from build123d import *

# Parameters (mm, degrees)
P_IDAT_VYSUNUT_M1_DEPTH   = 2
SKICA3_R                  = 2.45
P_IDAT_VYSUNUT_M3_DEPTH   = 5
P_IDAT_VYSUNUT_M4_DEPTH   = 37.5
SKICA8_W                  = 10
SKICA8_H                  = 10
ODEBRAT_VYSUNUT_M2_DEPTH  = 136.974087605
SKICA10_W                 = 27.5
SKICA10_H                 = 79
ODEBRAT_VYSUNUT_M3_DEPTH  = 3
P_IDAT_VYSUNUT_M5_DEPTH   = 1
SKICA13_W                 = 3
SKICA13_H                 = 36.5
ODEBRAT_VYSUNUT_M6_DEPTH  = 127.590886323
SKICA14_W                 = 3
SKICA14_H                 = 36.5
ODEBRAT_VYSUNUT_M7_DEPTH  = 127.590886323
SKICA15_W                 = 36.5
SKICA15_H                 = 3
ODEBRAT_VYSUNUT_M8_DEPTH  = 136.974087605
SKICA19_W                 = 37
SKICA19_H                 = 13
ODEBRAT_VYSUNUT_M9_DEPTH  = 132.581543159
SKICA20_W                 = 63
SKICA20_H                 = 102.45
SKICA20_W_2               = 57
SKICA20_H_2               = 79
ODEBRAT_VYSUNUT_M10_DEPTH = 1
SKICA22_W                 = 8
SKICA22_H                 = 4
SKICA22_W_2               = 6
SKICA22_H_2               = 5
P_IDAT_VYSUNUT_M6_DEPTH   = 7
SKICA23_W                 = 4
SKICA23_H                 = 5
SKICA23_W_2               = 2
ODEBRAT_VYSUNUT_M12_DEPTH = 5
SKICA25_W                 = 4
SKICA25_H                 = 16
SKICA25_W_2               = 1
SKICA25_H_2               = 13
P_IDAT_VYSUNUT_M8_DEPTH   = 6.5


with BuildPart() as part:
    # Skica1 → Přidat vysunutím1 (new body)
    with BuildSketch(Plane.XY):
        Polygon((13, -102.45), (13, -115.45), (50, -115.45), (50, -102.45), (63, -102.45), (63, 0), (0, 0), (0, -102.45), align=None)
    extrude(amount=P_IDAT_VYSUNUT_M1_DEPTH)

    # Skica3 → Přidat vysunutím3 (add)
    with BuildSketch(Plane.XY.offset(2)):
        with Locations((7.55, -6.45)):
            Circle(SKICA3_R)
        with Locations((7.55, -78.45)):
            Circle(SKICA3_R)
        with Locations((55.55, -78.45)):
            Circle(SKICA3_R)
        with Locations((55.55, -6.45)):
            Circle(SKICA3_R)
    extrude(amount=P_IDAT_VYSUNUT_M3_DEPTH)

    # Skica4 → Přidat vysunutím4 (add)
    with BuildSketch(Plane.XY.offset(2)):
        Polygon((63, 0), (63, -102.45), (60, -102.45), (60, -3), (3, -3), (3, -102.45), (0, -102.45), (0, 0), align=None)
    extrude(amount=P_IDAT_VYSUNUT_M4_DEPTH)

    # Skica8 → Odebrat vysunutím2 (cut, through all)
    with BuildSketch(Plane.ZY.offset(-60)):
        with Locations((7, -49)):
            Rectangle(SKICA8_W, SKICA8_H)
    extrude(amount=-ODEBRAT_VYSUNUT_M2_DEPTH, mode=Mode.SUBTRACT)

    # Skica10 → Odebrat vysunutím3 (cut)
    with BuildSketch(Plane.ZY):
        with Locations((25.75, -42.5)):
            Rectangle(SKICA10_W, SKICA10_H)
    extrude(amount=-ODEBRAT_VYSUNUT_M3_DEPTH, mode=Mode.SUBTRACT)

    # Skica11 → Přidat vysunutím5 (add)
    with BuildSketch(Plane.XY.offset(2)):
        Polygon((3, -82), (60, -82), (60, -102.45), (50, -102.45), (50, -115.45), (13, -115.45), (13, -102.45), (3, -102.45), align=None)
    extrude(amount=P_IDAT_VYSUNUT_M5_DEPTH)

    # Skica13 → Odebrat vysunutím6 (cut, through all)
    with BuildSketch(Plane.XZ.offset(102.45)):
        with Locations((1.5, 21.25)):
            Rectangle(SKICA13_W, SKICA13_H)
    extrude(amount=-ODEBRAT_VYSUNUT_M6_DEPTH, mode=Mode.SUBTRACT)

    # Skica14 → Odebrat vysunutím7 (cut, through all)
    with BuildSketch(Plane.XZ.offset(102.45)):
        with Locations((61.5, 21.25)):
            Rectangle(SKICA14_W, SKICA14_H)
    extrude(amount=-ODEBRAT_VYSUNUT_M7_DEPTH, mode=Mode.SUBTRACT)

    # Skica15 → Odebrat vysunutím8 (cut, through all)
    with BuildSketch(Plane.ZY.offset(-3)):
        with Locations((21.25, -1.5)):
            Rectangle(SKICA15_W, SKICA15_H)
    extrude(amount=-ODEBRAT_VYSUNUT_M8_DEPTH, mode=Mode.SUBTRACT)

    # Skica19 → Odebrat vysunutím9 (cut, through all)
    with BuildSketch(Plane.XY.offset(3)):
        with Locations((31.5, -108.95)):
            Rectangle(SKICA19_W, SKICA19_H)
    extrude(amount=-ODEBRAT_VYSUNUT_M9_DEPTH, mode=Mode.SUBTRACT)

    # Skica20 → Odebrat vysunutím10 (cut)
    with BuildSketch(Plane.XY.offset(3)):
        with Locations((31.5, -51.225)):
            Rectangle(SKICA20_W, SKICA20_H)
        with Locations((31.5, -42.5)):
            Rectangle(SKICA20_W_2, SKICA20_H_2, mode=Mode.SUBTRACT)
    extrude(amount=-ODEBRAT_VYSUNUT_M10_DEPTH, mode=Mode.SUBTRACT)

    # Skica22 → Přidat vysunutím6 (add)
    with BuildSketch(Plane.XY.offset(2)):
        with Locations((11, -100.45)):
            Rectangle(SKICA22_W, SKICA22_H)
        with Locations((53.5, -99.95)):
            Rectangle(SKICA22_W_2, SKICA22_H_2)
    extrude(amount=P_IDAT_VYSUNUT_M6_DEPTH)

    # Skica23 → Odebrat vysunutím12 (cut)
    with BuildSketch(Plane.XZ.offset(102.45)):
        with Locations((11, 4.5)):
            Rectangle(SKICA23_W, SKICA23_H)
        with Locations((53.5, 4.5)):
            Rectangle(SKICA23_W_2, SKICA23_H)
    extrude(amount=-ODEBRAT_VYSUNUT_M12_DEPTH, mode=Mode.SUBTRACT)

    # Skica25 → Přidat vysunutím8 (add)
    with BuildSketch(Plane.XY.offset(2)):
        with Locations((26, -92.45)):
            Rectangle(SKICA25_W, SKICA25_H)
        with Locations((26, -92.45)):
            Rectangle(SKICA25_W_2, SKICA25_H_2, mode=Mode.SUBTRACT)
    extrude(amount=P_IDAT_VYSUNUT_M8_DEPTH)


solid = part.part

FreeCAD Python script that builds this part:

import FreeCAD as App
import Part
import Sketcher
from FreeCAD import Vector


def add_polygon(sketch, points):
    """Adds a closed chain of lines whose ends are joined by coincident constraints."""
    first, n = sketch.GeometryCount, len(points)
    for a, b in zip(points, points[1:] + points[:1]):
        sketch.addGeometry(Part.LineSegment(App.Vector(*a, 0), App.Vector(*b, 0)), False)
    for i in range(n):
        sketch.addConstraint(Sketcher.Constraint("Coincident", first + i, 2, first + (i + 1) % n, 1))

doc = App.newDocument("Part")
body = doc.addObject("PartDesign::Body", "Body")

# Sketch on XY plane
sketch1 = doc.addObject("Sketcher::SketchObject", "Sketch")
body.addObject(sketch1)
sketch1.AttachmentSupport = (doc.XY_Plane, [""])
sketch1.MapMode = "FlatFace"
add_polygon(sketch1, [(13, -102), (13, -115), (50, -115), (50, -102), (63, -102), (63, 0), (0, 0), (0, -102)])  # lines 0-7
sketch1.addConstraint(Sketcher.Constraint("Vertical", 0))
sketch1.addConstraint(Sketcher.Constraint("Horizontal", 1))
sketch1.addConstraint(Sketcher.Constraint("Vertical", 2))
sketch1.addConstraint(Sketcher.Constraint("Horizontal", 3))
sketch1.addConstraint(Sketcher.Constraint("Vertical", 4))
sketch1.addConstraint(Sketcher.Constraint("Horizontal", 5))
sketch1.addConstraint(Sketcher.Constraint("Vertical", 6))
sketch1.addConstraint(Sketcher.Constraint("Horizontal", 7))
sketch1.addConstraint(Sketcher.Constraint("Coincident", 5, 2, -1, 1))
sketch1.addConstraint(Sketcher.Constraint("Horizontal", 3, 2, 6, 2))
sketch1.addConstraint(Sketcher.Constraint("Equal", 3, 7))
sketch1.addConstraint(Sketcher.Constraint("Equal", 7, 0))
sketch1.addConstraint(Sketcher.Constraint("DistanceX", 1, 1, 1, 2, 37.0))
sketch1.addConstraint(Sketcher.Constraint("DistanceX", 3, 1, 3, 2, 13.0))
sketch1.addConstraint(Sketcher.Constraint("DistanceY", 4, 1, 4, 2, 102.45))
pad1 = doc.addObject("PartDesign::Pad", "Pad")
body.addObject(pad1)
pad1.Profile = sketch1
pad1.Length = 2

# Sketch on XY plane
sketch2 = doc.addObject("Sketcher::SketchObject", "Sketch001")
body.addObject(sketch2)
sketch2.AttachmentSupport = (doc.XY_Plane, [""])
sketch2.MapMode = "FlatFace"
sketch2.AttachmentOffset = App.Placement(Vector(0, 0, 2), App.Rotation())
sketch2.addGeometry(Part.Circle(Vector(7.5, -6.5, 0), Vector(0, 0, 1), 2.5), False)
sketch2.addGeometry(Part.Circle(Vector(7.5, -78.5, 0), Vector(0, 0, 1), 2.5), False)
sketch2.addGeometry(Part.Circle(Vector(55.5, -78.5, 0), Vector(0, 0, 1), 2.5), False)
sketch2.addGeometry(Part.Circle(Vector(55.5, -6.5, 0), Vector(0, 0, 1), 2.5), False)
sketch2.addConstraint(Sketcher.Constraint("Equal", 0, 1))
sketch2.addConstraint(Sketcher.Constraint("Equal", 1, 2))
sketch2.addConstraint(Sketcher.Constraint("Equal", 2, 3))
sketch2.addConstraint(Sketcher.Constraint("Horizontal", 1, 3, 2, 3))
sketch2.addConstraint(Sketcher.Constraint("Horizontal", 0, 3, 3, 3))
sketch2.addConstraint(Sketcher.Constraint("Vertical", 0, 3, 1, 3))
sketch2.addConstraint(Sketcher.Constraint("Vertical", 2, 3, 3, 3))
sketch2.addConstraint(Sketcher.Constraint("Diameter", 0, 4.9))
sketch2.addConstraint(Sketcher.Constraint("DistanceY", 1, 3, 0, 3, 72.0))
sketch2.addConstraint(Sketcher.Constraint("DistanceX", 1, 3, 2, 3, 48.0))
sketch2.addConstraint(Sketcher.Constraint("DistanceX", -1, 1, 0, 3, 7.55))
sketch2.addConstraint(Sketcher.Constraint("DistanceY", 0, 3, -1, 1, 6.45))
pad2 = doc.addObject("PartDesign::Pad", "Pad001")
body.addObject(pad2)
pad2.Profile = sketch2
pad2.Length = 5

# Sketch on XY plane
sketch3 = doc.addObject("Sketcher::SketchObject", "Sketch002")
body.addObject(sketch3)
sketch3.AttachmentSupport = (doc.XY_Plane, [""])
sketch3.MapMode = "FlatFace"
sketch3.AttachmentOffset = App.Placement(Vector(0, 0, 2), App.Rotation())
add_polygon(sketch3, [(63, -102.5), (63, 0), (0, 0), (0, -102.5), (3, -102.5), (3, -3), (60, -3), (60, -102.5)])  # lines 0-7
sketch3.addConstraint(Sketcher.Constraint("Vertical", 0))
sketch3.addConstraint(Sketcher.Constraint("Horizontal", 1))
sketch3.addConstraint(Sketcher.Constraint("Vertical", 2))
sketch3.addConstraint(Sketcher.Constraint("Horizontal", 3))
sketch3.addConstraint(Sketcher.Constraint("Vertical", 4))
sketch3.addConstraint(Sketcher.Constraint("Horizontal", 5))
sketch3.addConstraint(Sketcher.Constraint("Vertical", 6))
sketch3.addConstraint(Sketcher.Constraint("Horizontal", 7))
sketch3.addConstraint(Sketcher.Constraint("Coincident", 1, 2, -1, 1))
sketch3.addConstraint(Sketcher.Constraint("Horizontal", 3, 2, 6, 2))
sketch3.addConstraint(Sketcher.Constraint("Equal", 3, 7))
sketch3.addConstraint(Sketcher.Constraint("DistanceX", 1, 2, 1, 1, 63.0))
sketch3.addConstraint(Sketcher.Constraint("DistanceX", 3, 1, 3, 2, 3.0))
sketch3.addConstraint(Sketcher.Constraint("DistanceY", 4, 2, -1, 1, 3.0))
sketch3.addConstraint(Sketcher.Constraint("DistanceY", 0, 1, 0, 2, 102.45))
pad3 = doc.addObject("PartDesign::Pad", "Pad002")
body.addObject(pad3)
pad3.Profile = sketch3
pad3.Length = 37.5

# Sketch on YZ plane
sketch4 = doc.addObject("Sketcher::SketchObject", "Sketch003")
body.addObject(sketch4)
sketch4.AttachmentSupport = (doc.YZ_Plane, [""])
sketch4.MapMode = "FlatFace"
sketch4.AttachmentOffset = App.Placement(Vector(0, 0, 60), App.Rotation())
add_polygon(sketch4, [(-44, 2), (-54, 2), (-54, 12), (-44, 12)])  # lines 0-3
sketch4.addConstraint(Sketcher.Constraint("Horizontal", 0))
sketch4.addConstraint(Sketcher.Constraint("Vertical", 1))
sketch4.addConstraint(Sketcher.Constraint("Horizontal", 2))
sketch4.addConstraint(Sketcher.Constraint("Vertical", 3))
sketch4.addConstraint(Sketcher.Constraint("Equal", 2, 1))
sketch4.addConstraint(Sketcher.Constraint("DistanceX", 0, 2, 0, 1, 10.0))
sketch4.addConstraint(Sketcher.Constraint("DistanceX", 0, 2, -1, 1, 54.0))
sketch4.addConstraint(Sketcher.Constraint("DistanceY", -1, 1, 0, 2, 2.0))
pocket1 = doc.addObject("PartDesign::Pocket", "Pocket")
body.addObject(pocket1)
pocket1.Profile = sketch4
pocket1.Type = "ThroughAll"
pocket1.Reversed = True

# Sketch on YZ plane
sketch5 = doc.addObject("Sketcher::SketchObject", "Sketch004")
body.addObject(sketch5)
sketch5.AttachmentSupport = (doc.YZ_Plane, [""])
sketch5.MapMode = "FlatFace"
add_polygon(sketch5, [(-3, 12), (-82, 12), (-82, 40), (-3, 40)])  # lines 0-3
sketch5.addConstraint(Sketcher.Constraint("Horizontal", 0))
sketch5.addConstraint(Sketcher.Constraint("Vertical", 1))
sketch5.addConstraint(Sketcher.Constraint("Horizontal", 2))
sketch5.addConstraint(Sketcher.Constraint("Vertical", 3))
sketch5.addConstraint(Sketcher.Constraint("DistanceX", 0, 2, 0, 1, 79.0))
sketch5.addConstraint(Sketcher.Constraint("DistanceY", 1, 1, 1, 2, 27.5))
sketch5.addConstraint(Sketcher.Constraint("DistanceX", 0, 2, -1, 1, 82.0))
sketch5.addConstraint(Sketcher.Constraint("DistanceY", -1, 1, 0, 2, 12.0))
pocket2 = doc.addObject("PartDesign::Pocket", "Pocket001")
body.addObject(pocket2)
pocket2.Profile = sketch5
pocket2.Length = 3
pocket2.Reversed = True

# Sketch on XY plane
sketch6 = doc.addObject("Sketcher::SketchObject", "Sketch005")
body.addObject(sketch6)
sketch6.AttachmentSupport = (doc.XY_Plane, [""])
sketch6.MapMode = "FlatFace"
sketch6.AttachmentOffset = App.Placement(Vector(0, 0, 2), App.Rotation())
add_polygon(sketch6, [(60, -82), (3, -82), (3, -102), (13, -102), (13, -115), (50, -115), (50, -102), (60, -102)])  # lines 0-7
sketch6.addConstraint(Sketcher.Constraint("Horizontal", 0))
sketch6.addConstraint(Sketcher.Constraint("Vertical", 1))
sketch6.addConstraint(Sketcher.Constraint("Horizontal", 2))
sketch6.addConstraint(Sketcher.Constraint("Vertical", 3))
sketch6.addConstraint(Sketcher.Constraint("Horizontal", 4))
sketch6.addConstraint(Sketcher.Constraint("Vertical", 5))
sketch6.addConstraint(Sketcher.Constraint("Horizontal", 6))
sketch6.addConstraint(Sketcher.Constraint("Vertical", 7))
sketch6.addConstraint(Sketcher.Constraint("Horizontal", 2, 2, 5, 2))
sketch6.addConstraint(Sketcher.Constraint("Equal", 2, 6))
sketch6.addConstraint(Sketcher.Constraint("DistanceX", 0, 2, 0, 1, 57.0))
sketch6.addConstraint(Sketcher.Constraint("DistanceX", 2, 1, 2, 2, 10.0))
sketch6.addConstraint(Sketcher.Constraint("DistanceY", 3, 2, 3, 1, 13.0))
sketch6.addConstraint(Sketcher.Constraint("DistanceX", -1, 1, 0, 2, 3.0))
sketch6.addConstraint(Sketcher.Constraint("DistanceY", 0, 2, -1, 1, 82.0))
sketch6.addConstraint(Sketcher.Constraint("DistanceY", 1, 2, 1, 1, 20.45))
pad4 = doc.addObject("PartDesign::Pad", "Pad003")
body.addObject(pad4)
pad4.Profile = sketch6
pad4.Length = 1

# Sketch on XZ plane
sketch7 = doc.addObject("Sketcher::SketchObject", "Sketch006")
body.addObject(sketch7)
sketch7.AttachmentSupport = (doc.XZ_Plane, [""])
sketch7.MapMode = "FlatFace"
sketch7.AttachmentOffset = App.Placement(Vector(0, 0, 102.45), App.Rotation())
add_polygon(sketch7, [(0, 39.5), (0, 3), (3, 3), (3, 39.5)])  # lines 0-3
sketch7.addConstraint(Sketcher.Constraint("Vertical", 0))
sketch7.addConstraint(Sketcher.Constraint("Horizontal", 1))
sketch7.addConstraint(Sketcher.Constraint("Vertical", 2))
sketch7.addConstraint(Sketcher.Constraint("Horizontal", 3))
sketch7.addConstraint(Sketcher.Constraint("PointOnObject", 0, 2, -2))
sketch7.addConstraint(Sketcher.Constraint("DistanceX", 1, 1, 1, 2, 3.0))
sketch7.addConstraint(Sketcher.Constraint("DistanceY", 0, 2, 0, 1, 36.5))
sketch7.addConstraint(Sketcher.Constraint("DistanceY", -1, 1, 0, 2, 3.0))
pocket3 = doc.addObject("PartDesign::Pocket", "Pocket002")
body.addObject(pocket3)
pocket3.Profile = sketch7
pocket3.Type = "ThroughAll"

# Sketch on XZ plane
sketch8 = doc.addObject("Sketcher::SketchObject", "Sketch007")
body.addObject(sketch8)
sketch8.AttachmentSupport = (doc.XZ_Plane, [""])
sketch8.MapMode = "FlatFace"
sketch8.AttachmentOffset = App.Placement(Vector(0, 0, 102.45), App.Rotation())
add_polygon(sketch8, [(60, 39.5), (60, 3), (63, 3), (63, 39.5)])  # lines 0-3
sketch8.addConstraint(Sketcher.Constraint("Vertical", 0))
sketch8.addConstraint(Sketcher.Constraint("Horizontal", 1))
sketch8.addConstraint(Sketcher.Constraint("Vertical", 2))
sketch8.addConstraint(Sketcher.Constraint("Horizontal", 3))
sketch8.addConstraint(Sketcher.Constraint("DistanceX", 1, 1, 1, 2, 3.0))
sketch8.addConstraint(Sketcher.Constraint("DistanceY", 0, 2, 0, 1, 36.5))
sketch8.addConstraint(Sketcher.Constraint("DistanceX", -1, 1, 0, 2, 60.0))
sketch8.addConstraint(Sketcher.Constraint("DistanceY", -1, 1, 0, 2, 3.0))
pocket4 = doc.addObject("PartDesign::Pocket", "Pocket003")
body.addObject(pocket4)
pocket4.Profile = sketch8
pocket4.Type = "ThroughAll"

# Sketch on YZ plane
sketch9 = doc.addObject("Sketcher::SketchObject", "Sketch008")
body.addObject(sketch9)
sketch9.AttachmentSupport = (doc.YZ_Plane, [""])
sketch9.MapMode = "FlatFace"
sketch9.AttachmentOffset = App.Placement(Vector(0, 0, 3), App.Rotation())
add_polygon(sketch9, [(0, 3), (-3, 3), (-3, 39.5), (0, 39.5)])  # lines 0-3
sketch9.addConstraint(Sketcher.Constraint("Horizontal", 0))
sketch9.addConstraint(Sketcher.Constraint("Vertical", 1))
sketch9.addConstraint(Sketcher.Constraint("Horizontal", 2))
sketch9.addConstraint(Sketcher.Constraint("Vertical", 3))
sketch9.addConstraint(Sketcher.Constraint("PointOnObject", 2, 2, -2))
sketch9.addConstraint(Sketcher.Constraint("DistanceX", 0, 2, 0, 1, 3.0))
sketch9.addConstraint(Sketcher.Constraint("DistanceY", 1, 1, 1, 2, 36.5))
sketch9.addConstraint(Sketcher.Constraint("DistanceY", -1, 1, 0, 2, 3.0))
pocket5 = doc.addObject("PartDesign::Pocket", "Pocket004")
body.addObject(pocket5)
pocket5.Profile = sketch9
pocket5.Type = "ThroughAll"
pocket5.Reversed = True

# Sketch on XY plane
sketch10 = doc.addObject("Sketcher::SketchObject", "Sketch009")
body.addObject(sketch10)
sketch10.AttachmentSupport = (doc.XY_Plane, [""])
sketch10.MapMode = "FlatFace"
sketch10.AttachmentOffset = App.Placement(Vector(0, 0, 3), App.Rotation())
add_polygon(sketch10, [(13, -102), (13, -115), (50, -115), (50, -102)])  # lines 0-3
sketch10.addConstraint(Sketcher.Constraint("Vertical", 0))
sketch10.addConstraint(Sketcher.Constraint("Horizontal", 1))
sketch10.addConstraint(Sketcher.Constraint("Vertical", 2))
sketch10.addConstraint(Sketcher.Constraint("Horizontal", 3))
sketch10.addConstraint(Sketcher.Constraint("DistanceX", 1, 1, 1, 2, 37.0))
sketch10.addConstraint(Sketcher.Constraint("DistanceY", 0, 2, 0, 1, 13.0))
sketch10.addConstraint(Sketcher.Constraint("DistanceX", -1, 1, 0, 2, 13.0))
sketch10.addConstraint(Sketcher.Constraint("DistanceY", 0, 2, -1, 1, 115.45))
pocket6 = doc.addObject("PartDesign::Pocket", "Pocket005")
body.addObject(pocket6)
pocket6.Profile = sketch10
pocket6.Type = "ThroughAll"

# Sketch on XY plane
sketch11 = doc.addObject("Sketcher::SketchObject", "Sketch010")
body.addObject(sketch11)
sketch11.AttachmentSupport = (doc.XY_Plane, [""])
sketch11.MapMode = "FlatFace"
sketch11.AttachmentOffset = App.Placement(Vector(0, 0, 3), App.Rotation())
add_polygon(sketch11, [(0, 0), (0, -102), (63, -102), (63, 0)])  # lines 0-3
add_polygon(sketch11, [(60, -82), (3, -82), (3, -3), (60, -3)])  # lines 4-7
sketch11.addConstraint(Sketcher.Constraint("Vertical", 0))
sketch11.addConstraint(Sketcher.Constraint("Horizontal", 1))
sketch11.addConstraint(Sketcher.Constraint("Vertical", 2))
sketch11.addConstraint(Sketcher.Constraint("Horizontal", 3))
sketch11.addConstraint(Sketcher.Constraint("Horizontal", 4))
sketch11.addConstraint(Sketcher.Constraint("Vertical", 5))
sketch11.addConstraint(Sketcher.Constraint("Horizontal", 6))
sketch11.addConstraint(Sketcher.Constraint("Vertical", 7))
sketch11.addConstraint(Sketcher.Constraint("Coincident", 3, 2, -1, 1))
sketch11.addConstraint(Sketcher.Constraint("DistanceX", 1, 1, 1, 2, 63.0))
sketch11.addConstraint(Sketcher.Constraint("DistanceX", 4, 2, 4, 1, 57.0))
sketch11.addConstraint(Sketcher.Constraint("DistanceY", 5, 1, 5, 2, 79.0))
sketch11.addConstraint(Sketcher.Constraint("DistanceX", -1, 1, 4, 2, 3.0))
sketch11.addConstraint(Sketcher.Constraint("DistanceY", 4, 2, -1, 1, 82.0))
sketch11.addConstraint(Sketcher.Constraint("DistanceY", 0, 2, 0, 1, 102.45))
pocket7 = doc.addObject("PartDesign::Pocket", "Pocket006")
body.addObject(pocket7)
pocket7.Profile = sketch11
pocket7.Length = 1

# Sketch on XY plane
sketch12 = doc.addObject("Sketcher::SketchObject", "Sketch011")
body.addObject(sketch12)
sketch12.AttachmentSupport = (doc.XY_Plane, [""])
sketch12.MapMode = "FlatFace"
sketch12.AttachmentOffset = App.Placement(Vector(0, 0, 2), App.Rotation())
add_polygon(sketch12, [(7, -98.5), (7, -102.5), (15, -102.5), (15, -98.5)])  # lines 0-3
add_polygon(sketch12, [(50.5, -97.5), (50.5, -102.5), (56.5, -102.5), (56.5, -97.5)])  # lines 4-7
sketch12.addConstraint(Sketcher.Constraint("Vertical", 0))
sketch12.addConstraint(Sketcher.Constraint("Horizontal", 1))
sketch12.addConstraint(Sketcher.Constraint("Vertical", 2))
sketch12.addConstraint(Sketcher.Constraint("Horizontal", 3))
sketch12.addConstraint(Sketcher.Constraint("Vertical", 4))
sketch12.addConstraint(Sketcher.Constraint("Horizontal", 5))
sketch12.addConstraint(Sketcher.Constraint("Vertical", 6))
sketch12.addConstraint(Sketcher.Constraint("Horizontal", 7))
sketch12.addConstraint(Sketcher.Constraint("Horizontal", 1, 2, 4, 2))
sketch12.addConstraint(Sketcher.Constraint("DistanceX", 1, 1, 1, 2, 8.0))
sketch12.addConstraint(Sketcher.Constraint("DistanceX", 5, 1, 5, 2, 6.0))
sketch12.addConstraint(Sketcher.Constraint("DistanceY", 0, 2, 0, 1, 4.0))
sketch12.addConstraint(Sketcher.Constraint("DistanceY", 4, 2, 4, 1, 5.0))
sketch12.addConstraint(Sketcher.Constraint("DistanceX", -1, 1, 0, 2, 7.0))
sketch12.addConstraint(Sketcher.Constraint("DistanceX", -1, 1, 4, 2, 50.5))
sketch12.addConstraint(Sketcher.Constraint("DistanceY", 0, 2, -1, 1, 102.45))
pad5 = doc.addObject("PartDesign::Pad", "Pad004")
body.addObject(pad5)
pad5.Profile = sketch12
pad5.Length = 7

# Sketch on XZ plane
sketch13 = doc.addObject("Sketcher::SketchObject", "Sketch012")
body.addObject(sketch13)
sketch13.AttachmentSupport = (doc.XZ_Plane, [""])
sketch13.MapMode = "FlatFace"
sketch13.AttachmentOffset = App.Placement(Vector(0, 0, 102.45), App.Rotation())
add_polygon(sketch13, [(9, 7), (9, 2), (13, 2), (13, 7)])  # lines 0-3
add_polygon(sketch13, [(52.5, 7), (52.5, 2), (54.5, 2), (54.5, 7)])  # lines 4-7
sketch13.addConstraint(Sketcher.Constraint("Vertical", 0))
sketch13.addConstraint(Sketcher.Constraint("Horizontal", 1))
sketch13.addConstraint(Sketcher.Constraint("Vertical", 2))
sketch13.addConstraint(Sketcher.Constraint("Horizontal", 3))
sketch13.addConstraint(Sketcher.Constraint("Vertical", 4))
sketch13.addConstraint(Sketcher.Constraint("Horizontal", 5))
sketch13.addConstraint(Sketcher.Constraint("Vertical", 6))
sketch13.addConstraint(Sketcher.Constraint("Horizontal", 7))
sketch13.addConstraint(Sketcher.Constraint("Horizontal", 1, 2, 4, 2))
sketch13.addConstraint(Sketcher.Constraint("Horizontal", 3, 2, 6, 2))
sketch13.addConstraint(Sketcher.Constraint("DistanceX", 1, 1, 1, 2, 4.0))
sketch13.addConstraint(Sketcher.Constraint("DistanceX", 5, 1, 5, 2, 2.0))
sketch13.addConstraint(Sketcher.Constraint("DistanceY", 0, 2, 0, 1, 5.0))
sketch13.addConstraint(Sketcher.Constraint("DistanceX", -1, 1, 0, 2, 9.0))
sketch13.addConstraint(Sketcher.Constraint("DistanceY", -1, 1, 0, 2, 2.0))
sketch13.addConstraint(Sketcher.Constraint("DistanceX", -1, 1, 4, 2, 52.5))
pocket8 = doc.addObject("PartDesign::Pocket", "Pocket007")
body.addObject(pocket8)
pocket8.Profile = sketch13
pocket8.Length = 5

# Sketch on XY plane
sketch14 = doc.addObject("Sketcher::SketchObject", "Sketch013")
body.addObject(sketch14)
sketch14.AttachmentSupport = (doc.XY_Plane, [""])
sketch14.MapMode = "FlatFace"
sketch14.AttachmentOffset = App.Placement(Vector(0, 0, 2), App.Rotation())
add_polygon(sketch14, [(24, -84.5), (24, -100.5), (28, -100.5), (28, -84.5)])  # lines 0-3
add_polygon(sketch14, [(26.5, -99), (25.5, -99), (25.5, -86), (26.5, -86)])  # lines 4-7
sketch14.addConstraint(Sketcher.Constraint("Vertical", 0))
sketch14.addConstraint(Sketcher.Constraint("Horizontal", 1))
sketch14.addConstraint(Sketcher.Constraint("Vertical", 2))
sketch14.addConstraint(Sketcher.Constraint("Horizontal", 3))
sketch14.addConstraint(Sketcher.Constraint("Horizontal", 4))
sketch14.addConstraint(Sketcher.Constraint("Vertical", 5))
sketch14.addConstraint(Sketcher.Constraint("Horizontal", 6))
sketch14.addConstraint(Sketcher.Constraint("Vertical", 7))
sketch14.addConstraint(Sketcher.Constraint("DistanceX", 1, 1, 1, 2, 4.0))
sketch14.addConstraint(Sketcher.Constraint("DistanceX", 4, 2, 4, 1, 1.0))
sketch14.addConstraint(Sketcher.Constraint("DistanceY", 0, 2, 0, 1, 16.0))
sketch14.addConstraint(Sketcher.Constraint("DistanceY", 5, 1, 5, 2, 13.0))
sketch14.addConstraint(Sketcher.Constraint("DistanceX", -1, 1, 0, 2, 24.0))
sketch14.addConstraint(Sketcher.Constraint("DistanceX", -1, 1, 4, 2, 25.5))
sketch14.addConstraint(Sketcher.Constraint("DistanceY", 0, 2, 4, 2, 1.5))
sketch14.addConstraint(Sketcher.Constraint("DistanceY", 0, 2, -1, 1, 100.45))
pad6 = doc.addObject("PartDesign::Pad", "Pad005")
body.addObject(pad6)
pad6.Profile = sketch14
pad6.Length = 6.5

doc.recompute()
